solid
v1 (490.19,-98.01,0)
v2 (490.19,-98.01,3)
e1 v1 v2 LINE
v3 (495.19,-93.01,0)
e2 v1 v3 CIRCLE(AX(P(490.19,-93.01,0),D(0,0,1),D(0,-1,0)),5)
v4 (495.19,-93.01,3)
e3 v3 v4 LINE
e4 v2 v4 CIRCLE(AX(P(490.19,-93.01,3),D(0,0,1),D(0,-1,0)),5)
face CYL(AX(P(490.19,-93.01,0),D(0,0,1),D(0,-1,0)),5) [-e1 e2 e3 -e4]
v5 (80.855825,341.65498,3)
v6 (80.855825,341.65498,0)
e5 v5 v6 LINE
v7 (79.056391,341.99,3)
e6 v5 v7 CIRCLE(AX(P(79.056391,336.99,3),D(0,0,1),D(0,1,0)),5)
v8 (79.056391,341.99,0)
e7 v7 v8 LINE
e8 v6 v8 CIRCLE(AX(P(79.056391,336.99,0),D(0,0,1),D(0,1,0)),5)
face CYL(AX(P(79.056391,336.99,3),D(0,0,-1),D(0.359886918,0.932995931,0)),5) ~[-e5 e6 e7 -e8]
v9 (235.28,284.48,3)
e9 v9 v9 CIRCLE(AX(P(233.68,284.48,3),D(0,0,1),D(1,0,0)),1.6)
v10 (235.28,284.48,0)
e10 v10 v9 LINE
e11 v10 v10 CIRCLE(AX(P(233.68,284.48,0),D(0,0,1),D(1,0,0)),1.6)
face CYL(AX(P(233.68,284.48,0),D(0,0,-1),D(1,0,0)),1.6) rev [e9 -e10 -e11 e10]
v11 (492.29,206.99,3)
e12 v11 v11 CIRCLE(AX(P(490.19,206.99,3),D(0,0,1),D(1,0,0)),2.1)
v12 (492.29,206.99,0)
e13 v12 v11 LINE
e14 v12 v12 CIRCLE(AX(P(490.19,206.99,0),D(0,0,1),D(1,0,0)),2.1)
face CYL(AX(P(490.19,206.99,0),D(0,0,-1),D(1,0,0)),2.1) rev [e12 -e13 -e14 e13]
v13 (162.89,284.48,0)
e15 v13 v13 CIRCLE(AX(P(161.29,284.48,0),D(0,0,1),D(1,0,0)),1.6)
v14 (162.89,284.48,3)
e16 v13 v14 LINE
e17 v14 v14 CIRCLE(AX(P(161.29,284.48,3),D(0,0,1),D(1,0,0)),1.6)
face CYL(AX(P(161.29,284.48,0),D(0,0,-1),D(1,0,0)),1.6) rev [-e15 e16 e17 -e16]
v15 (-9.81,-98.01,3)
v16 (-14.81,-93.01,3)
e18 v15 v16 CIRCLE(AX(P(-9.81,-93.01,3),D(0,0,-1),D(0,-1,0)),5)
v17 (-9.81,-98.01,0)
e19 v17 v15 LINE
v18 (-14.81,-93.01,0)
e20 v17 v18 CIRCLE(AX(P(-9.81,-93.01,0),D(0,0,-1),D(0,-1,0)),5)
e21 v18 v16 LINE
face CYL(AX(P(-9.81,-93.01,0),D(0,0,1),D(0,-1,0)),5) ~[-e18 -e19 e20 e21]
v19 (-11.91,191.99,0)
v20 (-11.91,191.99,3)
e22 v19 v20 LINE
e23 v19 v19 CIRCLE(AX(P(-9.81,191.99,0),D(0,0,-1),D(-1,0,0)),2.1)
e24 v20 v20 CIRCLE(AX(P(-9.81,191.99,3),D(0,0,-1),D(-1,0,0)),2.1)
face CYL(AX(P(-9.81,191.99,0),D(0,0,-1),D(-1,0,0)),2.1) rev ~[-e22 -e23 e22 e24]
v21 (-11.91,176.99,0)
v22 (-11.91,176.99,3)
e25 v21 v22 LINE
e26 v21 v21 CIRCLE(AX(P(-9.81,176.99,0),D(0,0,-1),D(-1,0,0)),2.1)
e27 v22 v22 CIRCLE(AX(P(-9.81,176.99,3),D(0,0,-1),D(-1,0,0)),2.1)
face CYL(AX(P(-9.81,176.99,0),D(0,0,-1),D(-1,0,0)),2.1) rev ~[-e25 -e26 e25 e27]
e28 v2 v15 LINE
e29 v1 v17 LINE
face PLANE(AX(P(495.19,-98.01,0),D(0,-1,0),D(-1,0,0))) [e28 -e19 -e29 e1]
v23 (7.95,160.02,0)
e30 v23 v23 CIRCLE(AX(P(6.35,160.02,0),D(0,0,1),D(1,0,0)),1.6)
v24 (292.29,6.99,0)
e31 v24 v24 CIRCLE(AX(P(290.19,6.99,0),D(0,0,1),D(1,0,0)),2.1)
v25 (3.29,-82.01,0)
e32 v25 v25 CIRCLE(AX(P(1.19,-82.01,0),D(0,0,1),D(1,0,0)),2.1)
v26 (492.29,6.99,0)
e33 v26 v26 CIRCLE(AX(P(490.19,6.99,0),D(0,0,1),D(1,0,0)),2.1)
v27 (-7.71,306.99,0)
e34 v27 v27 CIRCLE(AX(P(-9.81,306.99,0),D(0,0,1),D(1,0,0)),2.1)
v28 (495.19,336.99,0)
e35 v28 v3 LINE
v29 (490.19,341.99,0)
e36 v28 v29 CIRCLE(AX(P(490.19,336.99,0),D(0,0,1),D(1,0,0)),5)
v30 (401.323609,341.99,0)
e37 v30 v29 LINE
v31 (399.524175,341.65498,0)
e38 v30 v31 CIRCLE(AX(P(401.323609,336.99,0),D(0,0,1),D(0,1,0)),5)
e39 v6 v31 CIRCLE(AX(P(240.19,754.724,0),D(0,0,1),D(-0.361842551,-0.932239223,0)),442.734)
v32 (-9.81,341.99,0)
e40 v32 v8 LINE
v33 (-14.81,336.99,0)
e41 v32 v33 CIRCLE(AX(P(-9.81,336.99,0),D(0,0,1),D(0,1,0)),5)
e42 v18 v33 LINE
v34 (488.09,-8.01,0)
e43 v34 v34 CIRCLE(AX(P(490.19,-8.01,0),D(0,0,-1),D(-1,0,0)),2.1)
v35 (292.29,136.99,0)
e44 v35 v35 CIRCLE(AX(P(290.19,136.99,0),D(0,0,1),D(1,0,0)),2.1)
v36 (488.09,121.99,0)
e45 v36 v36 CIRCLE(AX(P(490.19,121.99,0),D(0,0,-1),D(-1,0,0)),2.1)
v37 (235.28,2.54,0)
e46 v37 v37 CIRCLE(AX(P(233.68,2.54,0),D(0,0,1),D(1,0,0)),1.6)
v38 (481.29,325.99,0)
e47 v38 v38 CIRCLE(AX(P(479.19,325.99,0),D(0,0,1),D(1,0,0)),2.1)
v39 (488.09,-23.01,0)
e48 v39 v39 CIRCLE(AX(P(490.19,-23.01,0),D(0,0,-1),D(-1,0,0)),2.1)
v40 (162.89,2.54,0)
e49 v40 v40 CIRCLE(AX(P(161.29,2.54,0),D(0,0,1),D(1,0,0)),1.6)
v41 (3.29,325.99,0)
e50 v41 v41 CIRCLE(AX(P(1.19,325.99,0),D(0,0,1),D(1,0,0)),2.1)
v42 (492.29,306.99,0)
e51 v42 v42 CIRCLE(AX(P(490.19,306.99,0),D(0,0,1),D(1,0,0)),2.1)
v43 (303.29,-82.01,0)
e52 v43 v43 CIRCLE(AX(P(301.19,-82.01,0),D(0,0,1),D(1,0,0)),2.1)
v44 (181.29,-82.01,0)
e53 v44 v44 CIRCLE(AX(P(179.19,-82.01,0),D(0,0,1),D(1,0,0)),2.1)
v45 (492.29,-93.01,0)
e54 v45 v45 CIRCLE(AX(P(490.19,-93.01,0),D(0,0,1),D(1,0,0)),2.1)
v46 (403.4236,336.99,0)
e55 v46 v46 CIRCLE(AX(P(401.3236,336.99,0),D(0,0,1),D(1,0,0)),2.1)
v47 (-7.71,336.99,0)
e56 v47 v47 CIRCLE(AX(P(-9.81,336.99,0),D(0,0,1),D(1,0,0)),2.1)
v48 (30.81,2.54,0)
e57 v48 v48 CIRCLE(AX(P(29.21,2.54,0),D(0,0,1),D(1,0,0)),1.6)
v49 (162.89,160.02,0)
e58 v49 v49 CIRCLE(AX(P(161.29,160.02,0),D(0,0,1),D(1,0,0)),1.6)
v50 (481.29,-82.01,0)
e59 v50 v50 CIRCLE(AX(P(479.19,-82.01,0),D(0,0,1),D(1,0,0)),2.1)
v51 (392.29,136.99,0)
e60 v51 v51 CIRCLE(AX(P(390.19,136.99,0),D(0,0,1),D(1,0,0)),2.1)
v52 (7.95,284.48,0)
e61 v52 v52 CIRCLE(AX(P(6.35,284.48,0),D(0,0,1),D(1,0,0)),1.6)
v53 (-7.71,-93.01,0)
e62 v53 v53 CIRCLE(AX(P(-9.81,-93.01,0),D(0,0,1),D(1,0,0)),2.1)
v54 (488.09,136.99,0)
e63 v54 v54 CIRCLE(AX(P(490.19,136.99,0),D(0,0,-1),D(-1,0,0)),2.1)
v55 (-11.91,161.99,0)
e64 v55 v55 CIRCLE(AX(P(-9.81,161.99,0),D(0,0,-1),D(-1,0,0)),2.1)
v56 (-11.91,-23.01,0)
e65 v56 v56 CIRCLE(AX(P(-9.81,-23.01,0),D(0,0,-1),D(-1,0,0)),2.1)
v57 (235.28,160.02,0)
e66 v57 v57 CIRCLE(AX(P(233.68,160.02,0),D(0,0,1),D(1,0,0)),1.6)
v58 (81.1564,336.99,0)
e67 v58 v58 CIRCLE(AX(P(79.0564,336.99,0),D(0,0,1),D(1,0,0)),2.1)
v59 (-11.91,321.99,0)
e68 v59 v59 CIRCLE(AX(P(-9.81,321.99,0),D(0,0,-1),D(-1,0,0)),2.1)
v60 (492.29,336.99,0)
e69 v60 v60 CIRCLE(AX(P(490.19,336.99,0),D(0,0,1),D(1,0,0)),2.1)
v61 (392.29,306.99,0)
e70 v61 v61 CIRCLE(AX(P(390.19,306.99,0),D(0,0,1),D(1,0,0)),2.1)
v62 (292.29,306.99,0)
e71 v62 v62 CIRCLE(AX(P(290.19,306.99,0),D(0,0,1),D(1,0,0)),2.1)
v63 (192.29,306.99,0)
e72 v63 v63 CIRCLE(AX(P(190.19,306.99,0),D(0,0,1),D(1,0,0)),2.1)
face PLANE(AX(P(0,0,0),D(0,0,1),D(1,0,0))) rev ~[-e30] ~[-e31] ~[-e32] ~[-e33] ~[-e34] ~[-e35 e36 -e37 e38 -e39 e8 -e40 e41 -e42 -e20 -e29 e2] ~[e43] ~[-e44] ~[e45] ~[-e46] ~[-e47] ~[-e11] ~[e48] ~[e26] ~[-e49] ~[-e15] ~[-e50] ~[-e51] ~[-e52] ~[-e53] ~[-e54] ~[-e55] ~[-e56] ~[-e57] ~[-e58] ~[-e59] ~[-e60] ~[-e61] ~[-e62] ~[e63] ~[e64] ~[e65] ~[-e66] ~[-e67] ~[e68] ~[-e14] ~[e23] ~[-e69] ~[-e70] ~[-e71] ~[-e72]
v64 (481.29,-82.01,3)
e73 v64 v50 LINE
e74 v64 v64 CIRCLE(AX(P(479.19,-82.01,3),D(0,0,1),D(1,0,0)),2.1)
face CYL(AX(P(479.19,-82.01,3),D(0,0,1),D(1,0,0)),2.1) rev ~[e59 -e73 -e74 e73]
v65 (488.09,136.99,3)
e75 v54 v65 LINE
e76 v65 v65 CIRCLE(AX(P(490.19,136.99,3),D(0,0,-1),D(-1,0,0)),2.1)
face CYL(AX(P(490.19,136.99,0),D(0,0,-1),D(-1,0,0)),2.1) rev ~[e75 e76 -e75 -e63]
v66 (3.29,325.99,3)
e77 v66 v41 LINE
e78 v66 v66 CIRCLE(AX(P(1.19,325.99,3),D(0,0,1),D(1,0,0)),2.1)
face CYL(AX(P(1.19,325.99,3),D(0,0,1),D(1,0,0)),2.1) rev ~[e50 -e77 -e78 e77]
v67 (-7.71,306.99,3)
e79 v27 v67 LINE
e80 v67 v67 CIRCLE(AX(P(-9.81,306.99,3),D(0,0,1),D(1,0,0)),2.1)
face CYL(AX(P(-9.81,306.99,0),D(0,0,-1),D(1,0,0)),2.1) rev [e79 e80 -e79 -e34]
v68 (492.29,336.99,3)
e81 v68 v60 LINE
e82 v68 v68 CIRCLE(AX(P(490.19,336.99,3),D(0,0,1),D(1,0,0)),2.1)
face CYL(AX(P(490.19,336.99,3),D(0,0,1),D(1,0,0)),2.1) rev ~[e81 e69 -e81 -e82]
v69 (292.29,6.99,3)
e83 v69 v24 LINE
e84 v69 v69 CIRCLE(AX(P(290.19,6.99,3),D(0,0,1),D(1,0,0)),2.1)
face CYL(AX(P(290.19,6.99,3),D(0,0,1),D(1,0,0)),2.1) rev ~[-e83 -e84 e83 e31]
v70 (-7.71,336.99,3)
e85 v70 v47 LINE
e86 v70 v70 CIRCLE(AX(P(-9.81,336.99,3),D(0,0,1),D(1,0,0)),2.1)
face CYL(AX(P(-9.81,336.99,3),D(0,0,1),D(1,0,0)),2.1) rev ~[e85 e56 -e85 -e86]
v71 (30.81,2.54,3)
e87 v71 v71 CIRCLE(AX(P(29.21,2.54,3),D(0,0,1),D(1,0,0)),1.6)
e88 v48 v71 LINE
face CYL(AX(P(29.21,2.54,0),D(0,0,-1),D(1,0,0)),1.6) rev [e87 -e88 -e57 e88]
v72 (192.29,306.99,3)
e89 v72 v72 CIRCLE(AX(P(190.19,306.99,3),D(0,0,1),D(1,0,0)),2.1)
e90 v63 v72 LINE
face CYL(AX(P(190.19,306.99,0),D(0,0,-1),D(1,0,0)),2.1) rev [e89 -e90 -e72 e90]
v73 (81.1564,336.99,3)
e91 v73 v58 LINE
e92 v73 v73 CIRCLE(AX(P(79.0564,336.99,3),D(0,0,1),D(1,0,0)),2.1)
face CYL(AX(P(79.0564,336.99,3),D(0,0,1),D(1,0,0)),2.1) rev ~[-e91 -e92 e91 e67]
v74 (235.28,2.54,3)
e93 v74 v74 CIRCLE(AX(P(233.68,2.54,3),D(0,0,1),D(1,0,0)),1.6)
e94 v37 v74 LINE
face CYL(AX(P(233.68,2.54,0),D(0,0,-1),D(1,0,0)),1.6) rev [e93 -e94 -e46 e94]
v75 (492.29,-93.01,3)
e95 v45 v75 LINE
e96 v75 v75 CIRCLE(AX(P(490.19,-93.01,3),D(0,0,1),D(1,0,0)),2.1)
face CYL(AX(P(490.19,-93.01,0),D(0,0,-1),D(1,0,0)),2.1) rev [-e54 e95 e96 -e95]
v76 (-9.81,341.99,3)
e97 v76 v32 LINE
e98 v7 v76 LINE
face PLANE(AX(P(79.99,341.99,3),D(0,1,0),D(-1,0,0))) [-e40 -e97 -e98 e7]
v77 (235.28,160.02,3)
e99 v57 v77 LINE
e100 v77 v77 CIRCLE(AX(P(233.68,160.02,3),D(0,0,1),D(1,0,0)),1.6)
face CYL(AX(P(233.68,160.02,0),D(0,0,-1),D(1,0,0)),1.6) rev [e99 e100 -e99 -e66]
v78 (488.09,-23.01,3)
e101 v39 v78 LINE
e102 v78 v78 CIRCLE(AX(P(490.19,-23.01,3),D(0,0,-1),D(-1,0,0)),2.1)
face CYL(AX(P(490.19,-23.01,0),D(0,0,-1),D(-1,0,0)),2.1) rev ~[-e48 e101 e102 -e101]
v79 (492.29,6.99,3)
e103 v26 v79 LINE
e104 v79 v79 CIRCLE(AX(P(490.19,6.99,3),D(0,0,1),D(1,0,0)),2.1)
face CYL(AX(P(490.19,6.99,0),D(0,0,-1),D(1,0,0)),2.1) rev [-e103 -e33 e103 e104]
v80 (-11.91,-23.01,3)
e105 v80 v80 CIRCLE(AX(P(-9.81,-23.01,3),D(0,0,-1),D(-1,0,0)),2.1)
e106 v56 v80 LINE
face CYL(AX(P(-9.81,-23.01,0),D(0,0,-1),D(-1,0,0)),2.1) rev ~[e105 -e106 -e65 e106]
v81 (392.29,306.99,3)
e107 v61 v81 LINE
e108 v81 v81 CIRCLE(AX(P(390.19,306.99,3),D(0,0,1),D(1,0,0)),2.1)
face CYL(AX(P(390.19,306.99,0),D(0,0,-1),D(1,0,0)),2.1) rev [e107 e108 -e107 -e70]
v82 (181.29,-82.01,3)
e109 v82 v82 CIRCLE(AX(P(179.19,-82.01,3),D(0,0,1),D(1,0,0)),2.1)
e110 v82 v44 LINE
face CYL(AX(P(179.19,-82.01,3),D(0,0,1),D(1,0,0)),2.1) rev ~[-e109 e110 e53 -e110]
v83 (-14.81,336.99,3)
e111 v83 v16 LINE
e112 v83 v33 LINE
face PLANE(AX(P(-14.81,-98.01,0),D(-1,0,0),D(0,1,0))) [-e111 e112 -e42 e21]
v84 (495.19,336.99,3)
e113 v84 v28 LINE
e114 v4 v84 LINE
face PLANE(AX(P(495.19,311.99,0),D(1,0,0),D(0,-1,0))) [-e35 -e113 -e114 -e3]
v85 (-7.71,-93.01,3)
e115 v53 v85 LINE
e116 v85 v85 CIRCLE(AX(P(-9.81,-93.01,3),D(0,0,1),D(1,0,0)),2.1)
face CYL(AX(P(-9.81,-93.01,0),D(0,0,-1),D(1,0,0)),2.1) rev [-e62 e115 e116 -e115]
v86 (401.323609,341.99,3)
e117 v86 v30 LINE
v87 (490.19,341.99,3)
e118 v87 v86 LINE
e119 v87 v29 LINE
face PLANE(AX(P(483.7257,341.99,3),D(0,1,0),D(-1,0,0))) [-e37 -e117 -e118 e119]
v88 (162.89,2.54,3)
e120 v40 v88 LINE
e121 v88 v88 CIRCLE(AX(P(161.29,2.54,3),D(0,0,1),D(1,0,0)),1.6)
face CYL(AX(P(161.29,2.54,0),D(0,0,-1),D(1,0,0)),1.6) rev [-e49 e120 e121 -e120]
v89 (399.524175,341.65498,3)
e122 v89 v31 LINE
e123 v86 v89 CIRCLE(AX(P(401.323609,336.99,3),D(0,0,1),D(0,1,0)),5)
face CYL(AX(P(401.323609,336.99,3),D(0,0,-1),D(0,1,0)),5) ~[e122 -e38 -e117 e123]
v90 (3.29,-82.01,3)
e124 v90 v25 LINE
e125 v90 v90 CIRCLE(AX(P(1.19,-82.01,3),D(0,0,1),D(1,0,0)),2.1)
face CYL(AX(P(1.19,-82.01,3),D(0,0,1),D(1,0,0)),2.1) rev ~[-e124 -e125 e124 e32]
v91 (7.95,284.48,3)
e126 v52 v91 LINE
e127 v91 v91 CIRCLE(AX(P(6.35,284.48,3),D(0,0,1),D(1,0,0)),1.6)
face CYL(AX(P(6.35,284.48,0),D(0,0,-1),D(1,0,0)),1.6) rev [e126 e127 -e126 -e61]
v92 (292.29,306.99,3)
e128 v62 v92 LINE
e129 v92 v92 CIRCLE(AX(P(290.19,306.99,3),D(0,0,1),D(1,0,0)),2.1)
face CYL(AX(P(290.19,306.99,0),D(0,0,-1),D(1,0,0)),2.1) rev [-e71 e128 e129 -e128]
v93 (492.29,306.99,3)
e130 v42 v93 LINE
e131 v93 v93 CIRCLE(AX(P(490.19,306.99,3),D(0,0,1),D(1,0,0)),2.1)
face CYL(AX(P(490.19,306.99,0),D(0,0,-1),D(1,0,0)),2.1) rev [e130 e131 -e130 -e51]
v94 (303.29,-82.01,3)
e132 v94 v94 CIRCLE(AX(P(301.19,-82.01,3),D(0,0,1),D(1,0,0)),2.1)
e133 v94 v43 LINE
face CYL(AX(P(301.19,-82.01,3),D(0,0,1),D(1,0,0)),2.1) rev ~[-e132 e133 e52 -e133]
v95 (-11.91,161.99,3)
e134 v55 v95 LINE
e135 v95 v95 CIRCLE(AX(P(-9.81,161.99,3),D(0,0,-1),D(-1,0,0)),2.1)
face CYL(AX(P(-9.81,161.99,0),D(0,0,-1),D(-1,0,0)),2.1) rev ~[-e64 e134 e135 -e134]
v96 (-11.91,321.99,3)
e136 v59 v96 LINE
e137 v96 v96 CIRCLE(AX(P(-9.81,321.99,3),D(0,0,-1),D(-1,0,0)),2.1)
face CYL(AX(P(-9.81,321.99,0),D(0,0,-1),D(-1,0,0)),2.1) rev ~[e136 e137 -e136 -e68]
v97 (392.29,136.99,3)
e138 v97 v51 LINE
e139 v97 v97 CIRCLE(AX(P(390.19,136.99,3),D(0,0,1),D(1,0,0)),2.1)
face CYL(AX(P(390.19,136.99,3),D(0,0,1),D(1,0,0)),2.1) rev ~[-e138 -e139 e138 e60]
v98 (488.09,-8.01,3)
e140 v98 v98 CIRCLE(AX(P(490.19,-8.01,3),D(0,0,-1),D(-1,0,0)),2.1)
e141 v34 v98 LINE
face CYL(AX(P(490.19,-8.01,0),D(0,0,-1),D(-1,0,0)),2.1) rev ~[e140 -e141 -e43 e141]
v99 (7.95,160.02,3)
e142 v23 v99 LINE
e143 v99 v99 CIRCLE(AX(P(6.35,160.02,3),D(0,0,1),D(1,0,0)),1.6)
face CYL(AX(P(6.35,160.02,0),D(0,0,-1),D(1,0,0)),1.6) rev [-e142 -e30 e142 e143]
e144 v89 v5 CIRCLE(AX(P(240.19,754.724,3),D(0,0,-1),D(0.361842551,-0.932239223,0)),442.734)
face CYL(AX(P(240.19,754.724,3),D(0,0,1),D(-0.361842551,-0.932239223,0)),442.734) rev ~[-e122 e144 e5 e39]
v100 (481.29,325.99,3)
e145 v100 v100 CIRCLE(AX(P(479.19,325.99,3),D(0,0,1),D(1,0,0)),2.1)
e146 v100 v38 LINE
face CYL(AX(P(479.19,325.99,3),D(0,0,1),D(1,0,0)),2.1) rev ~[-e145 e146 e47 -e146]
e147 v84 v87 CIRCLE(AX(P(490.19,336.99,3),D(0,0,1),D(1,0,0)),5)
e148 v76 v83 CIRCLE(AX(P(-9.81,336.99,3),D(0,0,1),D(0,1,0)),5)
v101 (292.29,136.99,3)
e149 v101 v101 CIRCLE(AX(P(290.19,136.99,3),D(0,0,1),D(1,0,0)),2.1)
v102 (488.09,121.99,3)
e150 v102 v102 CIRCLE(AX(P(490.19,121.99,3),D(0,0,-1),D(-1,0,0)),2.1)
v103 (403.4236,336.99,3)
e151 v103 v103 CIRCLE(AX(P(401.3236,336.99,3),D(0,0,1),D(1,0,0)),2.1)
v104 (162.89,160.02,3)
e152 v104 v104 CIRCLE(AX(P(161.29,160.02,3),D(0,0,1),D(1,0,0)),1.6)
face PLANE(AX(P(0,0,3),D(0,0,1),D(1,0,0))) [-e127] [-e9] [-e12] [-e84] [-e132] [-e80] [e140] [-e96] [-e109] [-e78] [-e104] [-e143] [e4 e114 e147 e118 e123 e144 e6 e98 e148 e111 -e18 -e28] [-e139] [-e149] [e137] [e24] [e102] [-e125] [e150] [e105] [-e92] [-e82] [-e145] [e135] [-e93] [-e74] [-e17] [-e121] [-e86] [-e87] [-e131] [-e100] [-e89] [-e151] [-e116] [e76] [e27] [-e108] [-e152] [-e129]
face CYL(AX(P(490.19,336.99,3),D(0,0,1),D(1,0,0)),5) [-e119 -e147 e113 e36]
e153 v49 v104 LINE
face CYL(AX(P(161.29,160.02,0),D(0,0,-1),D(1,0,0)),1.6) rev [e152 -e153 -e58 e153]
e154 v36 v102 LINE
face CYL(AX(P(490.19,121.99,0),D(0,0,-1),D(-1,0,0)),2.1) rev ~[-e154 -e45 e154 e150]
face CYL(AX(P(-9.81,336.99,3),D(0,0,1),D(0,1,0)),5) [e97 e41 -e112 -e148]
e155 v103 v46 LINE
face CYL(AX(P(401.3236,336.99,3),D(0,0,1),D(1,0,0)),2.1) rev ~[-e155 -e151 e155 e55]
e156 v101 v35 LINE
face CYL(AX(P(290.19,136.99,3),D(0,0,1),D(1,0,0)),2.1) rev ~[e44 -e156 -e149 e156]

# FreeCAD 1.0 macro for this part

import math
import FreeCAD as App
import Part
import Sketcher

V = App.Vector


def edges_at(feature, points):
    """Names of the edges that pass closest to the given points."""
    edges = feature.Shape.Edges
    near = lambda p: min(range(len(edges)), key=lambda i: edges[i].distToShape(Part.Vertex(*p))[0])
    return sorted({f"Edge{near(p) + 1}" for p in points})

doc = App.newDocument("Part")
body = doc.addObject("PartDesign::Body", "Body")

# Sketch on XY plane
sketch1 = body.newObject("Sketcher::SketchObject", "Sketch")
sketch1.AttachmentSupport = (doc.getObject("XY_Plane"), [""])
sketch1.MapMode = "FlatFace"
sketch1.addGeometry(Part.LineSegment(V(-14.8, -98, 0), V(495.2, -98, 0)), False)
sketch1.addGeometry(Part.LineSegment(V(495.2, -98, 0), V(495.2, 312, 0)), False)
sketch1.addGeometry(Part.LineSegment(V(495.2, 312, 0), V(-14.8, 312, 0)), False)
sketch1.addGeometry(Part.LineSegment(V(-14.8, 312, 0), V(-14.8, -98, 0)), False)
sketch1.addGeometry(Part.Circle(V(-9.8, -93, 0), V(0, 0, 1), 2.1), False)
sketch1.addGeometry(Part.Circle(V(90.2, -93, 0), V(0, 0, 1), 2.1), False)
sketch1.addGeometry(Part.Circle(V(29.2, 2.5, 0), V(0, 0, 1), 1.6), False)
sketch1.addGeometry(Part.Circle(V(190.2, -93, 0), V(0, 0, 1), 2.1), False)
sketch1.addGeometry(Part.Circle(V(161.3, 2.5, 0), V(0, 0, 1), 1.6), False)
sketch1.addGeometry(Part.Circle(V(233.7, 2.5, 0), V(0, 0, 1), 1.6), False)
sketch1.addGeometry(Part.Circle(V(-9.8, 7, 0), V(0, 0, 1), 2.1), False)
sketch1.addGeometry(Part.Circle(V(290.2, -93, 0), V(0, 0, 1), 2.1), False)
sketch1.addGeometry(Part.Circle(V(390.2, -93, 0), V(0, 0, 1), 2.1), False)
sketch1.addGeometry(Part.Circle(V(490.2, -93, 0), V(0, 0, 1), 2.1), False)
sketch1.addGeometry(Part.Circle(V(490.2, 7, 0), V(0, 0, 1), 2.1), False)
sketch1.addGeometry(Part.Circle(V(-9.8, 107, 0), V(0, 0, 1), 2.1), False)
sketch1.addGeometry(Part.Circle(V(6.3, 160, 0), V(0, 0, 1), 1.6), False)
sketch1.addGeometry(Part.Circle(V(-9.8, 207, 0), V(0, 0, 1), 2.1), False)
sketch1.addGeometry(Part.Circle(V(161.3, 160, 0), V(0, 0, 1), 1.6), False)
sketch1.addGeometry(Part.Circle(V(233.7, 160, 0), V(0, 0, 1), 1.6), False)
sketch1.addGeometry(Part.Circle(V(6.3, 284.5, 0), V(0, 0, 1), 1.6), False)
sketch1.addGeometry(Part.Circle(V(-9.8, 307, 0), V(0, 0, 1), 2.1), False)
sketch1.addGeometry(Part.Circle(V(90.2, 307, 0), V(0, 0, 1), 2.1), False)
sketch1.addGeometry(Part.Circle(V(161.3, 284.5, 0), V(0, 0, 1), 1.6), False)
sketch1.addGeometry(Part.Circle(V(233.7, 284.5, 0), V(0, 0, 1), 1.6), False)
sketch1.addGeometry(Part.Circle(V(190.2, 307, 0), V(0, 0, 1), 2.1), False)
sketch1.addGeometry(Part.Circle(V(490.2, 107, 0), V(0, 0, 1), 2.1), False)
sketch1.addGeometry(Part.Circle(V(490.2, 207, 0), V(0, 0, 1), 2.1), False)
sketch1.addGeometry(Part.Circle(V(290.2, 307, 0), V(0, 0, 1), 2.1), False)
sketch1.addGeometry(Part.Circle(V(390.2, 307, 0), V(0, 0, 1), 2.1), False)
sketch1.addGeometry(Part.Circle(V(490.2, 307, 0), V(0, 0, 1), 2.1), False)
sketch1.addConstraint(Sketcher.Constraint("Coincident", 0, 2, 1, 1))
sketch1.addConstraint(Sketcher.Constraint("Coincident", 1, 2, 2, 1))
sketch1.addConstraint(Sketcher.Constraint("Coincident", 2, 2, 3, 1))
sketch1.addConstraint(Sketcher.Constraint("Coincident", 3, 2, 0, 1))
sketch1.addConstraint(Sketcher.Constraint("Horizontal", 0))
sketch1.addConstraint(Sketcher.Constraint("Vertical", 1))
sketch1.addConstraint(Sketcher.Constraint("Horizontal", 2))
sketch1.addConstraint(Sketcher.Constraint("Vertical", 3))
sketch1.addConstraint(Sketcher.Constraint("Equal", 4, 5))
sketch1.addConstraint(Sketcher.Constraint("Equal", 5, 7))
sketch1.addConstraint(Sketcher.Constraint("Equal", 6, 8))
sketch1.addConstraint(Sketcher.Constraint("Equal", 8, 9))
sketch1.addConstraint(Sketcher.Constraint("Equal", 7, 10))
sketch1.addConstraint(Sketcher.Constraint("Equal", 10, 11))
sketch1.addConstraint(Sketcher.Constraint("Equal", 11, 12))
sketch1.addConstraint(Sketcher.Constraint("Equal", 12, 13))
sketch1.addConstraint(Sketcher.Constraint("Equal", 13, 14))
sketch1.addConstraint(Sketcher.Constraint("Equal", 14, 15))
sketch1.addConstraint(Sketcher.Constraint("Equal", 9, 16))
sketch1.addConstraint(Sketcher.Constraint("Equal", 15, 17))
sketch1.addConstraint(Sketcher.Constraint("Equal", 16, 18))
sketch1.addConstraint(Sketcher.Constraint("Equal", 18, 19))
sketch1.addConstraint(Sketcher.Constraint("Equal", 19, 20))
sketch1.addConstraint(Sketcher.Constraint("Equal", 17, 21))
sketch1.addConstraint(Sketcher.Constraint("Equal", 21, 22))
sketch1.addConstraint(Sketcher.Constraint("Equal", 20, 23))
sketch1.addConstraint(Sketcher.Constraint("Equal", 23, 24))
sketch1.addConstraint(Sketcher.Constraint("Equal", 22, 25))
sketch1.addConstraint(Sketcher.Constraint("Equal", 25, 26))
sketch1.addConstraint(Sketcher.Constraint("Equal", 26, 27))
sketch1.addConstraint(Sketcher.Constraint("Equal", 27, 28))
sketch1.addConstraint(Sketcher.Constraint("Equal", 28, 29))
sketch1.addConstraint(Sketcher.Constraint("Equal", 29, 30))
sketch1.addConstraint(Sketcher.Constraint("Horizontal", 4, 3, 5, 3))
sketch1.addConstraint(Sketcher.Constraint("Horizontal", 5, 3, 7, 3))
sketch1.addConstraint(Sketcher.Constraint("Horizontal", 6, 3, 8, 3))
sketch1.addConstraint(Sketcher.Constraint("Horizontal", 8, 3, 9, 3))
sketch1.addConstraint(Sketcher.Constraint("Horizontal", 7, 3, 11, 3))
sketch1.addConstraint(Sketcher.Constraint("Horizontal", 11, 3, 12, 3))
sketch1.addConstraint(Sketcher.Constraint("Horizontal", 12, 3, 13, 3))
sketch1.addConstraint(Sketcher.Constraint("Horizontal", 10, 3, 14, 3))
sketch1.addConstraint(Sketcher.Constraint("Horizontal", 16, 3, 18, 3))
sketch1.addConstraint(Sketcher.Constraint("Horizontal", 18, 3, 19, 3))
sketch1.addConstraint(Sketcher.Constraint("Horizontal", 21, 3, 22, 3))
sketch1.addConstraint(Sketcher.Constraint("Horizontal", 20, 3, 23, 3))
sketch1.addConstraint(Sketcher.Constraint("Horizontal", 23, 3, 24, 3))
sketch1.addConstraint(Sketcher.Constraint("Horizontal", 22, 3, 25, 3))
sketch1.addConstraint(Sketcher.Constraint("Horizontal", 15, 3, 26, 3))
sketch1.addConstraint(Sketcher.Constraint("Horizontal", 17, 3, 27, 3))
sketch1.addConstraint(Sketcher.Constraint("Horizontal", 25, 3, 28, 3))
sketch1.addConstraint(Sketcher.Constraint("Horizontal", 28, 3, 29, 3))
sketch1.addConstraint(Sketcher.Constraint("Horizontal", 29, 3, 30, 3))
sketch1.addConstraint(Sketcher.Constraint("Vertical", 4, 3, 10, 3))
sketch1.addConstraint(Sketcher.Constraint("Vertical", 13, 3, 14, 3))
sketch1.addConstraint(Sketcher.Constraint("Vertical", 10, 3, 15, 3))
sketch1.addConstraint(Sketcher.Constraint("Vertical", 15, 3, 17, 3))
sketch1.addConstraint(Sketcher.Constraint("Vertical", 8, 3, 18, 3))
sketch1.addConstraint(Sketcher.Constraint("Vertical", 9, 3, 19, 3))
sketch1.addConstraint(Sketcher.Constraint("Vertical", 16, 3, 20, 3))
sketch1.addConstraint(Sketcher.Constraint("Vertical", 17, 3, 21, 3))
sketch1.addConstraint(Sketcher.Constraint("Vertical", 5, 3, 22, 3))
sketch1.addConstraint(Sketcher.Constraint("Vertical", 18, 3, 23, 3))
sketch1.addConstraint(Sketcher.Constraint("Vertical", 19, 3, 24, 3))
sketch1.addConstraint(Sketcher.Constraint("Vertical", 7, 3, 25, 3))
sketch1.addConstraint(Sketcher.Constraint("Vertical", 14, 3, 26, 3))
sketch1.addConstraint(Sketcher.Constraint("Vertical", 26, 3, 27, 3))
sketch1.addConstraint(Sketcher.Constraint("Vertical", 11, 3, 28, 3))
sketch1.addConstraint(Sketcher.Constraint("Vertical", 12, 3, 29, 3))
sketch1.addConstraint(Sketcher.Constraint("Vertical", 27, 3, 30, 3))
sketch1.addConstraint(Sketcher.Constraint("Diameter", 4, 4.2))
sketch1.addConstraint(Sketcher.Constraint("Diameter", 6, 3.2))
sketch1.addConstraint(Sketcher.Constraint("DistanceX", 0, 1, 0, 2, 510.0))
sketch1.addConstraint(Sketcher.Constraint("DistanceY", 1, 1, 1, 2, 410.0))
sketch1.addConstraint(Sketcher.Constraint("DistanceX", 4, 3, 5, 3, 100.0))
sketch1.addConstraint(Sketcher.Constraint("DistanceX", 5, 3, 7, 3, 100.0))
sketch1.addConstraint(Sketcher.Constraint("DistanceY", 4, 3, 10, 3, 100.0))
sketch1.addConstraint(Sketcher.Constraint("DistanceX", 7, 3, 11, 3, 100.0))
sketch1.addConstraint(Sketcher.Constraint("DistanceX", 11, 3, 12, 3, 100.0))
sketch1.addConstraint(Sketcher.Constraint("DistanceX", 12, 3, 13, 3, 100.0))
sketch1.addConstraint(Sketcher.Constraint("DistanceY", 10, 3, 15, 3, 100.0))
sketch1.addConstraint(Sketcher.Constraint("DistanceY", 15, 3, 17, 3, 100.0))
sketch1.addConstraint(Sketcher.Constraint("DistanceY", 17, 3, 21, 3, 100.0))
sketch1.addConstraint(Sketcher.Constraint("DistanceX", 13, 3, 0, 2, 5.0))
sketch1.addConstraint(Sketcher.Constraint("DistanceY", 0, 2, 13, 3, 5.0))
sketch1.addConstraint(Sketcher.Constraint("DistanceX", 8, 3, 7, 3, 28.9))
sketch1.addConstraint(Sketcher.Constraint("DistanceX", 4, 3, -1, 1, 9.81))
sketch1.addConstraint(Sketcher.Constraint("DistanceY", 4, 3, -1, 1, 93.01))
sketch1.addConstraint(Sketcher.Constraint("DistanceX", -1, 1, 6, 3, 29.21))
sketch1.addConstraint(Sketcher.Constraint("DistanceY", -1, 1, 6, 3, 2.54))
sketch1.addConstraint(Sketcher.Constraint("DistanceX", -1, 1, 9, 3, 233.68))
sketch1.addConstraint(Sketcher.Constraint("DistanceX", -1, 1, 16, 3, 6.35))
sketch1.addConstraint(Sketcher.Constraint("DistanceY", -1, 1, 16, 3, 160.02))
sketch1.addConstraint(Sketcher.Constraint("DistanceY", -1, 1, 20, 3, 284.48))
pad1 = body.newObject("PartDesign::Pad", "Pad")
pad1.Profile = sketch1
pad1.Length = 3
doc.recompute()

fillet = body.newObject("PartDesign::Fillet", "Fillet")
fillet.Base = (pad1, edges_at(pad1, [
    (495.19, -98.01, 1.5),
    (-14.81, -98.01, 1.5),
    (-14.81, 311.99, 1.5),
    (495.19, 311.99, 1.5),
]))
fillet.Radius = 5

# Sketch on XY plane
sketch2 = body.newObject("Sketcher::SketchObject", "Sketch001")
sketch2.AttachmentSupport = (doc.getObject("XY_Plane"), [""])
sketch2.MapMode = "FlatFace"
sketch2.AttachmentOffset = App.Placement(V(0, 0, 3), App.Rotation())
sketch2.addGeometry(Part.ArcOfCircle(Part.Circle(V(490, 307, 0), V(0, 0, 1), 5), math.radians(17), math.radians(90)), False)
sketch2.addGeometry(Part.ArcOfCircle(Part.Circle(V(-161, 107, 0), V(0, 0, 1), 687), math.radians(17.06), math.radians(20.01)), False)
sketch2.addGeometry(Part.LineSegment(V(484, 342, 0), V(400, 342, 0)), False)
sketch2.addGeometry(Part.ArcOfCircle(Part.Circle(V(240, 755, 0), V(0, 0, 1), 443), math.radians(-90), math.radians(-69)), False)
sketch2.addGeometry(Part.LineSegment(V(240, 312, 0), V(490, 312, 0)), False)
sketch2.addGeometry(Part.ArcOfCircle(Part.Circle(V(642, 107, 0), V(0, 0, 1), 687), math.radians(159.99), math.radians(162.94)), False)
sketch2.addGeometry(Part.ArcOfCircle(Part.Circle(V(-10, 307, 0), V(0, 0, 1), 5), math.radians(90), math.radians(163)), False)
sketch2.addGeometry(Part.LineSegment(V(-10, 312, 0), V(240, 312, 0)), False)
sketch2.addGeometry(Part.ArcOfCircle(Part.Circle(V(240, 755, 0), V(0, 0, 1), 443), math.radians(-111), math.radians(-90)), False)
sketch2.addGeometry(Part.LineSegment(V(80, 342, 0), V(-3, 342, 0)), False)
sketch2.addConstraint(Sketcher.Constraint("Tangent", 0, 1, 1, 1))
sketch2.addConstraint(Sketcher.Constraint("Coincident", 1, 2, 2, 1))
sketch2.addConstraint(Sketcher.Constraint("Coincident", 2, 2, 3, 2))
sketch2.addConstraint(Sketcher.Constraint("Tangent", 3, 1, 4, 1))
sketch2.addConstraint(Sketcher.Constraint("Tangent", 4, 2, 0, 2))
sketch2.addConstraint(Sketcher.Constraint("Tangent", 5, 2, 6, 2))
sketch2.addConstraint(Sketcher.Constraint("Tangent", 6, 1, 7, 1))
sketch2.addConstraint(Sketcher.Constraint("Tangent", 7, 2, 8, 2))
sketch2.addConstraint(Sketcher.Constraint("Coincident", 8, 1, 9, 1))
sketch2.addConstraint(Sketcher.Constraint("Coincident", 9, 2, 5, 1))
sketch2.addConstraint(Sketcher.Constraint("Horizontal", 2))
sketch2.addConstraint(Sketcher.Constraint("Horizontal", 4))
sketch2.addConstraint(Sketcher.Constraint("Horizontal", 7))
sketch2.addConstraint(Sketcher.Constraint("Horizontal", 9))
sketch2.addConstraint(Sketcher.Constraint("Coincident", 8, 3, 3, 3))
sketch2.addConstraint(Sketcher.Constraint("Equal", 1, 5))
sketch2.addConstraint(Sketcher.Constraint("Equal", 0, 6))
sketch2.addConstraint(Sketcher.Constraint("Equal", 3, 8))
sketch2.addConstraint(Sketcher.Constraint("Horizontal", 1, 3, 5, 3))
sketch2.addConstraint(Sketcher.Constraint("Horizontal", 2, 2, 8, 1))
sketch2.addConstraint(Sketcher.Constraint("Equal", 4, 7))
sketch2.addConstraint(Sketcher.Constraint("Radius", 0, 5.0))
sketch2.addConstraint(Sketcher.Constraint("DistanceX", 4, 1, 4, 2, 250.0))
sketch2.addConstraint(Sketcher.Constraint("Radius", 3, 442.734))
sketch2.addConstraint(Sketcher.Constraint("DistanceY", 1, 3, 0, 3, 200.0))
sketch2.addConstraint(Sketcher.Constraint("DistanceY", 0, 3, 2, 2, 35.0))
sketch2.addConstraint(Sketcher.Constraint("Radius", 1, 686.6667))
sketch2.addConstraint(Sketcher.Constraint("DistanceX", -1, 1, 0, 3, 490.19))
sketch2.addConstraint(Sketcher.Constraint("DistanceY", -1, 1, 0, 3, 306.99))
pad2 = body.newObject("PartDesign::Pad", "Pad001")
pad2.Profile = sketch2
pad2.Length = 3
pad2.Reversed = True

# Sketch on XY plane
sketch3 = body.newObject("Sketcher::SketchObject", "Sketch002")
sketch3.AttachmentSupport = (doc.getObject("XY_Plane"), [""])
sketch3.MapMode = "FlatFace"
sketch3.AttachmentOffset = App.Placement(V(0, 0, 3), App.Rotation())
sketch3.addGeometry(Part.ArcOfCircle(Part.Circle(V(490.187789, 306.989835, 0), V(0, 0, 1), 5.002211), math.radians(0.001889), math.radians(17.055823)), False)
sketch3.addGeometry(Part.LineSegment(V(495.19, 306.99, 0), V(495.19, 336.99, 0)), False)
sketch3.addGeometry(Part.ArcOfCircle(Part.Circle(V(490.19, 336.99, 0), V(0, 0, 1), 5), math.radians(0), math.radians(90)), False)
sketch3.addGeometry(Part.LineSegment(V(490.19, 341.99, 0), V(483.7257, 341.99, 0)), False)
sketch3.addGeometry(Part.ArcOfCircle(Part.Circle(V(-161.3878, 107.018542, 0), V(0, 0, 1), 686.573385), math.radians(17.061429), math.radians(20.01328)), False)
sketch3.addGeometry(Part.ArcOfCircle(Part.Circle(V(641.94486, 106.95917, 0), V(0, 0, 1), 686.760073), math.radians(159.987121), math.radians(162.938169)), False)
sketch3.addGeometry(Part.LineSegment(V(-3.3457, 341.99, 0), V(-9.81, 341.99, 0)), False)
sketch3.addGeometry(Part.ArcOfCircle(Part.Circle(V(-9.81, 336.99, 0), V(0, 0, 1), 5), math.radians(90), math.radians(180)), False)
sketch3.addGeometry(Part.LineSegment(V(-14.81, 336.99, 0), V(-14.81, 306.99, 0)), False)
sketch3.addGeometry(Part.ArcOfCircle(Part.Circle(V(-9.81216, 306.990491, 0), V(0, 0, 1), 4.99784), math.radians(162.936664), math.radians(180.005624)), False)
sketch3.addConstraint(Sketcher.Constraint("Coincident", 0, 1, 1, 1))
sketch3.addConstraint(Sketcher.Constraint("Coincident", 1, 2, 2, 1))
sketch3.addConstraint(Sketcher.Constraint("Coincident", 2, 2, 3, 1))
sketch3.addConstraint(Sketcher.Constraint("Coincident", 3, 2, 4, 2))
sketch3.addConstraint(Sketcher.Constraint("Coincident", 4, 1, 0, 2))
sketch3.addConstraint(Sketcher.Constraint("Coincident", 5, 1, 6, 1))
sketch3.addConstraint(Sketcher.Constraint("Coincident", 6, 2, 7, 1))
sketch3.addConstraint(Sketcher.Constraint("Coincident", 7, 2, 8, 1))
sketch3.addConstraint(Sketcher.Constraint("Coincident", 8, 2, 9, 2))
sketch3.addConstraint(Sketcher.Constraint("Coincident", 9, 1, 5, 2))
sketch3.addConstraint(Sketcher.Constraint("Vertical", 1))
sketch3.addConstraint(Sketcher.Constraint("Horizontal", 3))
sketch3.addConstraint(Sketcher.Constraint("Horizontal", 6))
sketch3.addConstraint(Sketcher.Constraint("Vertical", 8))
sketch3.addConstraint(Sketcher.Constraint("Radius", 2, 5.0))
sketch3.addConstraint(Sketcher.Constraint("Radius", 7, 5.0))
sketch3.addConstraint(Sketcher.Constraint("DistanceX", 2, 2, 1, 2, 5.0))
sketch3.addConstraint(Sketcher.Constraint("DistanceY", 1, 2, 2, 2, 5.0))
sketch3.addConstraint(Sketcher.Constraint("DistanceX", 7, 2, 6, 2, 5.0))
sketch3.addConstraint(Sketcher.Constraint("DistanceY", 7, 2, 6, 2, 5.0))
sketch3.addConstraint(Sketcher.Constraint("DistanceY", 1, 1, 1, 2, 30.0))
sketch3.addConstraint(Sketcher.Constraint("DistanceY", 8, 2, 8, 1, 30.0))
sketch3.addConstraint(Sketcher.Constraint("Radius", 5, 686.76))
sketch3.addConstraint(Sketcher.Constraint("DistanceX", 7, 3, 2, 3, 500.0))
sketch3.addConstraint(Sketcher.Constraint("DistanceX", 9, 3, 0, 3, 500.0))
sketch3.addConstraint(Sketcher.Constraint("DistanceY", 0, 1, 7, 3, 30.0))
sketch3.addConstraint(Sketcher.Constraint("Radius", 0, 5.0022))
sketch3.addConstraint(Sketcher.Constraint("Radius", 4, 686.5734))
sketch3.addConstraint(Sketcher.Constraint("DistanceX", -1, 1, 2, 3, 490.19))
sketch3.addConstraint(Sketcher.Constraint("DistanceY", -1, 1, 2, 3, 336.99))
sketch3.addConstraint(Sketcher.Constraint("DistanceX", -1, 1, 4, 1, 494.97))
sketch3.addConstraint(Sketcher.Constraint("DistanceX", 9, 1, -1, 1, 14.59))
sketch3.addConstraint(Sketcher.Constraint("DistanceX", 3, 2, 3, 1, 6.4643))
sketch3.addConstraint(Sketcher.Constraint("DistanceX", 6, 2, 6, 1, 6.4643))
sketch3.addConstraint(Sketcher.Constraint("DistanceY", -1, 1, 9, 1, 308.457))
sketch3.addConstraint(Sketcher.Constraint("DistanceY", 4, 3, 9, 3, 199.972))
pad3 = body.newObject("PartDesign::Pad", "Pad002")
pad3.Profile = sketch3
pad3.Length = 3
pad3.Reversed = True
doc.recompute()

fillet2 = body.newObject("PartDesign::Fillet", "Fillet001")
fillet2.Base = (pad3, edges_at(pad3, [(400.39, 341.99, 1.5), (79.99, 341.99, 1.5)]))
fillet2.Radius = 5

# Sketch on XY plane
sketch4 = body.newObject("Sketcher::SketchObject", "Sketch003")
sketch4.AttachmentSupport = (doc.getObject("XY_Plane"), [""])
sketch4.MapMode = "FlatFace"
sketch4.AttachmentOffset = App.Placement(V(0, 0, 3), App.Rotation())
sketch4.addGeometry(Part.Circle(V(479.2, -82, 0), V(0, 0, 1), 2.1), False)
sketch4.addGeometry(Part.Circle(V(1.2, -82, 0), V(0, 0, 1), 2.1), False)
sketch4.addGeometry(Part.Circle(V(1.2, 326, 0), V(0, 0, 1), 2.1), False)
sketch4.addGeometry(Part.Circle(V(479.2, 326, 0), V(0, 0, 1), 2.1), False)
sketch4.addGeometry(Part.Circle(V(490.2, 337, 0), V(0, 0, 1), 2.1), False)
sketch4.addGeometry(Part.Circle(V(-9.8, 337, 0), V(0, 0, 1), 2.1), False)
sketch4.addGeometry(Part.Circle(V(79.1, 337, 0), V(0, 0, 1), 2.1), False)
sketch4.addGeometry(Part.Circle(V(401.3, 337, 0), V(0, 0, 1), 2.1), False)
sketch4.addConstraint(Sketcher.Constraint("Equal", 0, 1))
sketch4.addConstraint(Sketcher.Constraint("Equal", 1, 2))
sketch4.addConstraint(Sketcher.Constraint("Equal", 2, 3))
sketch4.addConstraint(Sketcher.Constraint("Equal", 3, 4))
sketch4.addConstraint(Sketcher.Constraint("Equal", 4, 5))
sketch4.addConstraint(Sketcher.Constraint("Equal", 5, 6))
sketch4.addConstraint(Sketcher.Constraint("Equal", 6, 7))
sketch4.addConstraint(Sketcher.Constraint("Horizontal", 0, 3, 1, 3))
sketch4.addConstraint(Sketcher.Constraint("Horizontal", 2, 3, 3, 3))
sketch4.addConstraint(Sketcher.Constraint("Horizontal", 4, 3, 5, 3))
sketch4.addConstraint(Sketcher.Constraint("Horizontal", 5, 3, 6, 3))
sketch4.addConstraint(Sketcher.Constraint("Horizontal", 6, 3, 7, 3))
sketch4.addConstraint(Sketcher.Constraint("Vertical", 1, 3, 2, 3))
sketch4.addConstraint(Sketcher.Constraint("Vertical", 0, 3, 3, 3))
sketch4.addConstraint(Sketcher.Constraint("DistanceX", 3, 3, 4, 3, 11.0))
sketch4.addConstraint(Sketcher.Constraint("DistanceY", 3, 3, 4, 3, 11.0))
sketch4.addConstraint(Sketcher.Constraint("DistanceX", 5, 3, 2, 3, 11.0))
sketch4.addConstraint(Sketcher.Constraint("Diameter", 0, 4.2))
sketch4.addConstraint(Sketcher.Constraint("DistanceX", 1, 3, 0, 3, 478.0))
sketch4.addConstraint(Sketcher.Constraint("DistanceY", 1, 3, 2, 3, 408.0))
sketch4.addConstraint(Sketcher.Constraint("DistanceX", -1, 1, 0, 3, 479.19))
sketch4.addConstraint(Sketcher.Constraint("DistanceY", 0, 3, -1, 1, 82.01))
sketch4.addConstraint(Sketcher.Constraint("DistanceX", -1, 1, 6, 3, 79.0564))
sketch4.addConstraint(Sketcher.Constraint("DistanceX", -1, 1, 7, 3, 401.3236))
pocket1 = body.newObject("PartDesign::Pocket", "Pocket")
pocket1.Profile = sketch4
pocket1.Type = "ThroughAll"

# Sketch on XY plane
sketch5 = body.newObject("Sketcher::SketchObject", "Sketch004")
sketch5.AttachmentSupport = (doc.getObject("XY_Plane"), [""])
sketch5.MapMode = "FlatFace"
sketch5.addGeometry(Part.Circle(V(490.2, -23, 0), V(0, 0, 1), 2.1), False)
sketch5.addGeometry(Part.Circle(V(490.2, 137, 0), V(0, 0, 1), 2.1), False)
sketch5.addGeometry(Part.Circle(V(-9.8, 177, 0), V(0, 0, 1), 2.1), False)
sketch5.addGeometry(Part.Circle(V(490.2, 122, 0), V(0, 0, 1), 2.1), False)
sketch5.addGeometry(Part.Circle(V(-9.8, 192, 0), V(0, 0, 1), 2.1), False)
sketch5.addGeometry(Part.Circle(V(-9.8, 162, 0), V(0, 0, 1), 2.1), False)
sketch5.addGeometry(Part.Circle(V(-9.8, 322, 0), V(0, 0, 1), 2.1), False)
sketch5.addGeometry(Part.Circle(V(490.2, -8, 0), V(0, 0, 1), 2.1), False)
sketch5.addGeometry(Part.Circle(V(-9.8, -23, 0), V(0, 0, 1), 2.1), False)
sketch5.addConstraint(Sketcher.Constraint("Equal", 0, 1))
sketch5.addConstraint(Sketcher.Constraint("Equal", 1, 2))
sketch5.addConstraint(Sketcher.Constraint("Equal", 2, 3))
sketch5.addConstraint(Sketcher.Constraint("Equal", 3, 4))
sketch5.addConstraint(Sketcher.Constraint("Equal", 4, 5))
sketch5.addConstraint(Sketcher.Constraint("Equal", 5, 6))
sketch5.addConstraint(Sketcher.Constraint("Equal", 6, 7))
sketch5.addConstraint(Sketcher.Constraint("Equal", 7, 8))
sketch5.addConstraint(Sketcher.Constraint("Horizontal", 0, 3, 8, 3))
sketch5.addConstraint(Sketcher.Constraint("Vertical", 0, 3, 1, 3))
sketch5.addConstraint(Sketcher.Constraint("Vertical", 1, 3, 3, 3))
sketch5.addConstraint(Sketcher.Constraint("Vertical", 2, 3, 4, 3))
sketch5.addConstraint(Sketcher.Constraint("Vertical", 4, 3, 5, 3))
sketch5.addConstraint(Sketcher.Constraint("Vertical", 5, 3, 6, 3))
sketch5.addConstraint(Sketcher.Constraint("Vertical", 3, 3, 7, 3))
sketch5.addConstraint(Sketcher.Constraint("Vertical", 6, 3, 8, 3))
sketch5.addConstraint(Sketcher.Constraint("DistanceY", 3, 3, 1, 3, 15.0))
sketch5.addConstraint(Sketcher.Constraint("DistanceY", 2, 3, 4, 3, 15.0))
sketch5.addConstraint(Sketcher.Constraint("DistanceY", 5, 3, 2, 3, 15.0))
sketch5.addConstraint(Sketcher.Constraint("DistanceY", 0, 3, 7, 3, 15.0))
sketch5.addConstraint(Sketcher.Constraint("Diameter", 0, 4.2))
sketch5.addConstraint(Sketcher.Constraint("DistanceY", 0, 3, 1, 3, 160.0))
sketch5.addConstraint(Sketcher.Constraint("DistanceX", 2, 3, 1, 3, 500.0))
sketch5.addConstraint(Sketcher.Constraint("DistanceY", 1, 3, 2, 3, 40.0))
sketch5.addConstraint(Sketcher.Constraint("DistanceY", 4, 3, 6, 3, 130.0))
sketch5.addConstraint(Sketcher.Constraint("DistanceX", -1, 1, 0, 3, 490.19))
sketch5.addConstraint(Sketcher.Constraint("DistanceY", 0, 3, -1, 1, 23.01))
pocket2 = body.newObject("PartDesign::Pocket", "Pocket001")
pocket2.Profile = sketch5
pocket2.Type = "ThroughAll"
pocket2.Reversed = True

# Sketch on XY plane
sketch6 = body.newObject("Sketcher::SketchObject", "Sketch005")
sketch6.AttachmentSupport = (doc.getObject("XY_Plane"), [""])
sketch6.MapMode = "FlatFace"
sketch6.AttachmentOffset = App.Placement(V(0, 0, 3), App.Rotation())
sketch6.addGeometry(Part.Circle(V(301.2, -82, 0), V(0, 0, 1), 2.1), False)
sketch6.addGeometry(Part.Circle(V(179.2, -82, 0), V(0, 0, 1), 2.1), False)
sketch6.addConstraint(Sketcher.Constraint("Equal", 0, 1))
sketch6.addConstraint(Sketcher.Constraint("Horizontal", 0, 3, 1, 3))
sketch6.addConstraint(Sketcher.Constraint("Diameter", 0, 4.2))
sketch6.addConstraint(Sketcher.Constraint("DistanceX", 1, 3, 0, 3, 122.0))
sketch6.addConstraint(Sketcher.Constraint("DistanceX", -1, 1, 0, 3, 301.19))
sketch6.addConstraint(Sketcher.Constraint("DistanceY", 0, 3, -1, 1, 82.01))
pocket3 = body.newObject("PartDesign::Pocket", "Pocket002")
pocket3.Profile = sketch6
pocket3.Length = 3

# Sketch on XY plane
sketch7 = body.newObject("Sketcher::SketchObject", "Sketch006")
sketch7.AttachmentSupport = (doc.getObject("XY_Plane"), [""])
sketch7.MapMode = "FlatFace"
sketch7.AttachmentOffset = App.Placement(V(0, 0, 3), App.Rotation())
sketch7.addGeometry(Part.Circle(V(490.2, 107, 0), V(0, 0, 1), 2.1), False)
sketch7.addGeometry(Part.Circle(V(-9.8, 207, 0), V(0, 0, 1), 2.1), False)
sketch7.addGeometry(Part.Circle(V(-9.8, 107, 0), V(0, 0, 1), 2.1), False)
sketch7.addGeometry(Part.Circle(V(-9.8, 7, 0), V(0, 0, 1), 2.1), False)
sketch7.addGeometry(Part.Circle(V(90.2, -93, 0), V(0, 0, 1), 2.1), False)
sketch7.addGeometry(Part.Circle(V(190.2, -93, 0), V(0, 0, 1), 2.1), False)
sketch7.addGeometry(Part.Circle(V(290.2, -93, 0), V(0, 0, 1), 2.1), False)
sketch7.addGeometry(Part.Circle(V(390.2, -93, 0), V(0, 0, 1), 2.1), False)
sketch7.addGeometry(Part.Circle(V(90.2, 307, 0), V(0, 0, 1), 2.1), False)
sketch7.addConstraint(Sketcher.Constraint("Equal", 0, 1))
sketch7.addConstraint(Sketcher.Constraint("Equal", 1, 2))
sketch7.addConstraint(Sketcher.Constraint("Equal", 2, 3))
sketch7.addConstraint(Sketcher.Constraint("Equal", 3, 4))
sketch7.addConstraint(Sketcher.Constraint("Equal", 4, 5))
sketch7.addConstraint(Sketcher.Constraint("Equal", 5, 6))
sketch7.addConstraint(Sketcher.Constraint("Equal", 6, 7))
sketch7.addConstraint(Sketcher.Constraint("Equal", 7, 8))
sketch7.addConstraint(Sketcher.Constraint("Horizontal", 0, 3, 2, 3))
sketch7.addConstraint(Sketcher.Constraint("Horizontal", 4, 3, 5, 3))
sketch7.addConstraint(Sketcher.Constraint("Horizontal", 5, 3, 6, 3))
sketch7.addConstraint(Sketcher.Constraint("Horizontal", 6, 3, 7, 3))
sketch7.addConstraint(Sketcher.Constraint("Vertical", 1, 3, 2, 3))
sketch7.addConstraint(Sketcher.Constraint("Vertical", 2, 3, 3, 3))
sketch7.addConstraint(Sketcher.Constraint("Vertical", 4, 3, 8, 3))
sketch7.addConstraint(Sketcher.Constraint("Diameter", 0, 4.2))
sketch7.addConstraint(Sketcher.Constraint("DistanceX", 1, 3, 0, 3, 500.0))
sketch7.addConstraint(Sketcher.Constraint("DistanceY", 0, 3, 1, 3, 100.0))
sketch7.addConstraint(Sketcher.Constraint("DistanceY", 3, 3, 2, 3, 100.0))
sketch7.addConstraint(Sketcher.Constraint("DistanceX", 3, 3, 4, 3, 100.0))
sketch7.addConstraint(Sketcher.Constraint("DistanceY", 4, 3, 3, 3, 100.0))
sketch7.addConstraint(Sketcher.Constraint("DistanceX", 4, 3, 5, 3, 100.0))
sketch7.addConstraint(Sketcher.Constraint("DistanceX", 5, 3, 6, 3, 100.0))
sketch7.addConstraint(Sketcher.Constraint("DistanceX", 6, 3, 7, 3, 100.0))
sketch7.addConstraint(Sketcher.Constraint("DistanceY", 1, 3, 8, 3, 100.0))
sketch7.addConstraint(Sketcher.Constraint("DistanceX", -1, 1, 0, 3, 490.19))
sketch7.addConstraint(Sketcher.Constraint("DistanceY", -1, 1, 0, 3, 106.99))
pad4 = body.newObject("PartDesign::Pad", "Pad003")
pad4.Profile = sketch7
pad4.Length = 3
pad4.Reversed = True

# Sketch on XY plane
sketch8 = body.newObject("Sketcher::SketchObject", "Sketch007")
sketch8.AttachmentSupport = (doc.getObject("XY_Plane"), [""])
sketch8.MapMode = "FlatFace"
sketch8.AttachmentOffset = App.Placement(V(0, 0, 3), App.Rotation())
sketch8.addGeometry(Part.Circle(V(290.2, 7, 0), V(0, 0, 1), 2.1), False)
sketch8.addGeometry(Part.Circle(V(390.2, 137, 0), V(0, 0, 1), 2.1), False)
sketch8.addGeometry(Part.Circle(V(290.2, 137, 0), V(0, 0, 1), 2.1), False)
sketch8.addConstraint(Sketcher.Constraint("Equal", 0, 1))
sketch8.addConstraint(Sketcher.Constraint("Equal", 1, 2))
sketch8.addConstraint(Sketcher.Constraint("Horizontal", 1, 3, 2, 3))
sketch8.addConstraint(Sketcher.Constraint("Vertical", 0, 3, 2, 3))
sketch8.addConstraint(Sketcher.Constraint("Diameter", 0, 4.2))
sketch8.addConstraint(Sketcher.Constraint("DistanceX", 0, 3, 1, 3, 100.0))
sketch8.addConstraint(Sketcher.Constraint("DistanceY", 0, 3, 1, 3, 130.0))
sketch8.addConstraint(Sketcher.Constraint("DistanceX", -1, 1, 0, 3, 290.19))
sketch8.addConstraint(Sketcher.Constraint("DistanceY", -1, 1, 0, 3, 6.99))
pocket4 = body.newObject("PartDesign::Pocket", "Pocket003")
pocket4.Profile = sketch8
pocket4.Length = 3

doc.recompute()
